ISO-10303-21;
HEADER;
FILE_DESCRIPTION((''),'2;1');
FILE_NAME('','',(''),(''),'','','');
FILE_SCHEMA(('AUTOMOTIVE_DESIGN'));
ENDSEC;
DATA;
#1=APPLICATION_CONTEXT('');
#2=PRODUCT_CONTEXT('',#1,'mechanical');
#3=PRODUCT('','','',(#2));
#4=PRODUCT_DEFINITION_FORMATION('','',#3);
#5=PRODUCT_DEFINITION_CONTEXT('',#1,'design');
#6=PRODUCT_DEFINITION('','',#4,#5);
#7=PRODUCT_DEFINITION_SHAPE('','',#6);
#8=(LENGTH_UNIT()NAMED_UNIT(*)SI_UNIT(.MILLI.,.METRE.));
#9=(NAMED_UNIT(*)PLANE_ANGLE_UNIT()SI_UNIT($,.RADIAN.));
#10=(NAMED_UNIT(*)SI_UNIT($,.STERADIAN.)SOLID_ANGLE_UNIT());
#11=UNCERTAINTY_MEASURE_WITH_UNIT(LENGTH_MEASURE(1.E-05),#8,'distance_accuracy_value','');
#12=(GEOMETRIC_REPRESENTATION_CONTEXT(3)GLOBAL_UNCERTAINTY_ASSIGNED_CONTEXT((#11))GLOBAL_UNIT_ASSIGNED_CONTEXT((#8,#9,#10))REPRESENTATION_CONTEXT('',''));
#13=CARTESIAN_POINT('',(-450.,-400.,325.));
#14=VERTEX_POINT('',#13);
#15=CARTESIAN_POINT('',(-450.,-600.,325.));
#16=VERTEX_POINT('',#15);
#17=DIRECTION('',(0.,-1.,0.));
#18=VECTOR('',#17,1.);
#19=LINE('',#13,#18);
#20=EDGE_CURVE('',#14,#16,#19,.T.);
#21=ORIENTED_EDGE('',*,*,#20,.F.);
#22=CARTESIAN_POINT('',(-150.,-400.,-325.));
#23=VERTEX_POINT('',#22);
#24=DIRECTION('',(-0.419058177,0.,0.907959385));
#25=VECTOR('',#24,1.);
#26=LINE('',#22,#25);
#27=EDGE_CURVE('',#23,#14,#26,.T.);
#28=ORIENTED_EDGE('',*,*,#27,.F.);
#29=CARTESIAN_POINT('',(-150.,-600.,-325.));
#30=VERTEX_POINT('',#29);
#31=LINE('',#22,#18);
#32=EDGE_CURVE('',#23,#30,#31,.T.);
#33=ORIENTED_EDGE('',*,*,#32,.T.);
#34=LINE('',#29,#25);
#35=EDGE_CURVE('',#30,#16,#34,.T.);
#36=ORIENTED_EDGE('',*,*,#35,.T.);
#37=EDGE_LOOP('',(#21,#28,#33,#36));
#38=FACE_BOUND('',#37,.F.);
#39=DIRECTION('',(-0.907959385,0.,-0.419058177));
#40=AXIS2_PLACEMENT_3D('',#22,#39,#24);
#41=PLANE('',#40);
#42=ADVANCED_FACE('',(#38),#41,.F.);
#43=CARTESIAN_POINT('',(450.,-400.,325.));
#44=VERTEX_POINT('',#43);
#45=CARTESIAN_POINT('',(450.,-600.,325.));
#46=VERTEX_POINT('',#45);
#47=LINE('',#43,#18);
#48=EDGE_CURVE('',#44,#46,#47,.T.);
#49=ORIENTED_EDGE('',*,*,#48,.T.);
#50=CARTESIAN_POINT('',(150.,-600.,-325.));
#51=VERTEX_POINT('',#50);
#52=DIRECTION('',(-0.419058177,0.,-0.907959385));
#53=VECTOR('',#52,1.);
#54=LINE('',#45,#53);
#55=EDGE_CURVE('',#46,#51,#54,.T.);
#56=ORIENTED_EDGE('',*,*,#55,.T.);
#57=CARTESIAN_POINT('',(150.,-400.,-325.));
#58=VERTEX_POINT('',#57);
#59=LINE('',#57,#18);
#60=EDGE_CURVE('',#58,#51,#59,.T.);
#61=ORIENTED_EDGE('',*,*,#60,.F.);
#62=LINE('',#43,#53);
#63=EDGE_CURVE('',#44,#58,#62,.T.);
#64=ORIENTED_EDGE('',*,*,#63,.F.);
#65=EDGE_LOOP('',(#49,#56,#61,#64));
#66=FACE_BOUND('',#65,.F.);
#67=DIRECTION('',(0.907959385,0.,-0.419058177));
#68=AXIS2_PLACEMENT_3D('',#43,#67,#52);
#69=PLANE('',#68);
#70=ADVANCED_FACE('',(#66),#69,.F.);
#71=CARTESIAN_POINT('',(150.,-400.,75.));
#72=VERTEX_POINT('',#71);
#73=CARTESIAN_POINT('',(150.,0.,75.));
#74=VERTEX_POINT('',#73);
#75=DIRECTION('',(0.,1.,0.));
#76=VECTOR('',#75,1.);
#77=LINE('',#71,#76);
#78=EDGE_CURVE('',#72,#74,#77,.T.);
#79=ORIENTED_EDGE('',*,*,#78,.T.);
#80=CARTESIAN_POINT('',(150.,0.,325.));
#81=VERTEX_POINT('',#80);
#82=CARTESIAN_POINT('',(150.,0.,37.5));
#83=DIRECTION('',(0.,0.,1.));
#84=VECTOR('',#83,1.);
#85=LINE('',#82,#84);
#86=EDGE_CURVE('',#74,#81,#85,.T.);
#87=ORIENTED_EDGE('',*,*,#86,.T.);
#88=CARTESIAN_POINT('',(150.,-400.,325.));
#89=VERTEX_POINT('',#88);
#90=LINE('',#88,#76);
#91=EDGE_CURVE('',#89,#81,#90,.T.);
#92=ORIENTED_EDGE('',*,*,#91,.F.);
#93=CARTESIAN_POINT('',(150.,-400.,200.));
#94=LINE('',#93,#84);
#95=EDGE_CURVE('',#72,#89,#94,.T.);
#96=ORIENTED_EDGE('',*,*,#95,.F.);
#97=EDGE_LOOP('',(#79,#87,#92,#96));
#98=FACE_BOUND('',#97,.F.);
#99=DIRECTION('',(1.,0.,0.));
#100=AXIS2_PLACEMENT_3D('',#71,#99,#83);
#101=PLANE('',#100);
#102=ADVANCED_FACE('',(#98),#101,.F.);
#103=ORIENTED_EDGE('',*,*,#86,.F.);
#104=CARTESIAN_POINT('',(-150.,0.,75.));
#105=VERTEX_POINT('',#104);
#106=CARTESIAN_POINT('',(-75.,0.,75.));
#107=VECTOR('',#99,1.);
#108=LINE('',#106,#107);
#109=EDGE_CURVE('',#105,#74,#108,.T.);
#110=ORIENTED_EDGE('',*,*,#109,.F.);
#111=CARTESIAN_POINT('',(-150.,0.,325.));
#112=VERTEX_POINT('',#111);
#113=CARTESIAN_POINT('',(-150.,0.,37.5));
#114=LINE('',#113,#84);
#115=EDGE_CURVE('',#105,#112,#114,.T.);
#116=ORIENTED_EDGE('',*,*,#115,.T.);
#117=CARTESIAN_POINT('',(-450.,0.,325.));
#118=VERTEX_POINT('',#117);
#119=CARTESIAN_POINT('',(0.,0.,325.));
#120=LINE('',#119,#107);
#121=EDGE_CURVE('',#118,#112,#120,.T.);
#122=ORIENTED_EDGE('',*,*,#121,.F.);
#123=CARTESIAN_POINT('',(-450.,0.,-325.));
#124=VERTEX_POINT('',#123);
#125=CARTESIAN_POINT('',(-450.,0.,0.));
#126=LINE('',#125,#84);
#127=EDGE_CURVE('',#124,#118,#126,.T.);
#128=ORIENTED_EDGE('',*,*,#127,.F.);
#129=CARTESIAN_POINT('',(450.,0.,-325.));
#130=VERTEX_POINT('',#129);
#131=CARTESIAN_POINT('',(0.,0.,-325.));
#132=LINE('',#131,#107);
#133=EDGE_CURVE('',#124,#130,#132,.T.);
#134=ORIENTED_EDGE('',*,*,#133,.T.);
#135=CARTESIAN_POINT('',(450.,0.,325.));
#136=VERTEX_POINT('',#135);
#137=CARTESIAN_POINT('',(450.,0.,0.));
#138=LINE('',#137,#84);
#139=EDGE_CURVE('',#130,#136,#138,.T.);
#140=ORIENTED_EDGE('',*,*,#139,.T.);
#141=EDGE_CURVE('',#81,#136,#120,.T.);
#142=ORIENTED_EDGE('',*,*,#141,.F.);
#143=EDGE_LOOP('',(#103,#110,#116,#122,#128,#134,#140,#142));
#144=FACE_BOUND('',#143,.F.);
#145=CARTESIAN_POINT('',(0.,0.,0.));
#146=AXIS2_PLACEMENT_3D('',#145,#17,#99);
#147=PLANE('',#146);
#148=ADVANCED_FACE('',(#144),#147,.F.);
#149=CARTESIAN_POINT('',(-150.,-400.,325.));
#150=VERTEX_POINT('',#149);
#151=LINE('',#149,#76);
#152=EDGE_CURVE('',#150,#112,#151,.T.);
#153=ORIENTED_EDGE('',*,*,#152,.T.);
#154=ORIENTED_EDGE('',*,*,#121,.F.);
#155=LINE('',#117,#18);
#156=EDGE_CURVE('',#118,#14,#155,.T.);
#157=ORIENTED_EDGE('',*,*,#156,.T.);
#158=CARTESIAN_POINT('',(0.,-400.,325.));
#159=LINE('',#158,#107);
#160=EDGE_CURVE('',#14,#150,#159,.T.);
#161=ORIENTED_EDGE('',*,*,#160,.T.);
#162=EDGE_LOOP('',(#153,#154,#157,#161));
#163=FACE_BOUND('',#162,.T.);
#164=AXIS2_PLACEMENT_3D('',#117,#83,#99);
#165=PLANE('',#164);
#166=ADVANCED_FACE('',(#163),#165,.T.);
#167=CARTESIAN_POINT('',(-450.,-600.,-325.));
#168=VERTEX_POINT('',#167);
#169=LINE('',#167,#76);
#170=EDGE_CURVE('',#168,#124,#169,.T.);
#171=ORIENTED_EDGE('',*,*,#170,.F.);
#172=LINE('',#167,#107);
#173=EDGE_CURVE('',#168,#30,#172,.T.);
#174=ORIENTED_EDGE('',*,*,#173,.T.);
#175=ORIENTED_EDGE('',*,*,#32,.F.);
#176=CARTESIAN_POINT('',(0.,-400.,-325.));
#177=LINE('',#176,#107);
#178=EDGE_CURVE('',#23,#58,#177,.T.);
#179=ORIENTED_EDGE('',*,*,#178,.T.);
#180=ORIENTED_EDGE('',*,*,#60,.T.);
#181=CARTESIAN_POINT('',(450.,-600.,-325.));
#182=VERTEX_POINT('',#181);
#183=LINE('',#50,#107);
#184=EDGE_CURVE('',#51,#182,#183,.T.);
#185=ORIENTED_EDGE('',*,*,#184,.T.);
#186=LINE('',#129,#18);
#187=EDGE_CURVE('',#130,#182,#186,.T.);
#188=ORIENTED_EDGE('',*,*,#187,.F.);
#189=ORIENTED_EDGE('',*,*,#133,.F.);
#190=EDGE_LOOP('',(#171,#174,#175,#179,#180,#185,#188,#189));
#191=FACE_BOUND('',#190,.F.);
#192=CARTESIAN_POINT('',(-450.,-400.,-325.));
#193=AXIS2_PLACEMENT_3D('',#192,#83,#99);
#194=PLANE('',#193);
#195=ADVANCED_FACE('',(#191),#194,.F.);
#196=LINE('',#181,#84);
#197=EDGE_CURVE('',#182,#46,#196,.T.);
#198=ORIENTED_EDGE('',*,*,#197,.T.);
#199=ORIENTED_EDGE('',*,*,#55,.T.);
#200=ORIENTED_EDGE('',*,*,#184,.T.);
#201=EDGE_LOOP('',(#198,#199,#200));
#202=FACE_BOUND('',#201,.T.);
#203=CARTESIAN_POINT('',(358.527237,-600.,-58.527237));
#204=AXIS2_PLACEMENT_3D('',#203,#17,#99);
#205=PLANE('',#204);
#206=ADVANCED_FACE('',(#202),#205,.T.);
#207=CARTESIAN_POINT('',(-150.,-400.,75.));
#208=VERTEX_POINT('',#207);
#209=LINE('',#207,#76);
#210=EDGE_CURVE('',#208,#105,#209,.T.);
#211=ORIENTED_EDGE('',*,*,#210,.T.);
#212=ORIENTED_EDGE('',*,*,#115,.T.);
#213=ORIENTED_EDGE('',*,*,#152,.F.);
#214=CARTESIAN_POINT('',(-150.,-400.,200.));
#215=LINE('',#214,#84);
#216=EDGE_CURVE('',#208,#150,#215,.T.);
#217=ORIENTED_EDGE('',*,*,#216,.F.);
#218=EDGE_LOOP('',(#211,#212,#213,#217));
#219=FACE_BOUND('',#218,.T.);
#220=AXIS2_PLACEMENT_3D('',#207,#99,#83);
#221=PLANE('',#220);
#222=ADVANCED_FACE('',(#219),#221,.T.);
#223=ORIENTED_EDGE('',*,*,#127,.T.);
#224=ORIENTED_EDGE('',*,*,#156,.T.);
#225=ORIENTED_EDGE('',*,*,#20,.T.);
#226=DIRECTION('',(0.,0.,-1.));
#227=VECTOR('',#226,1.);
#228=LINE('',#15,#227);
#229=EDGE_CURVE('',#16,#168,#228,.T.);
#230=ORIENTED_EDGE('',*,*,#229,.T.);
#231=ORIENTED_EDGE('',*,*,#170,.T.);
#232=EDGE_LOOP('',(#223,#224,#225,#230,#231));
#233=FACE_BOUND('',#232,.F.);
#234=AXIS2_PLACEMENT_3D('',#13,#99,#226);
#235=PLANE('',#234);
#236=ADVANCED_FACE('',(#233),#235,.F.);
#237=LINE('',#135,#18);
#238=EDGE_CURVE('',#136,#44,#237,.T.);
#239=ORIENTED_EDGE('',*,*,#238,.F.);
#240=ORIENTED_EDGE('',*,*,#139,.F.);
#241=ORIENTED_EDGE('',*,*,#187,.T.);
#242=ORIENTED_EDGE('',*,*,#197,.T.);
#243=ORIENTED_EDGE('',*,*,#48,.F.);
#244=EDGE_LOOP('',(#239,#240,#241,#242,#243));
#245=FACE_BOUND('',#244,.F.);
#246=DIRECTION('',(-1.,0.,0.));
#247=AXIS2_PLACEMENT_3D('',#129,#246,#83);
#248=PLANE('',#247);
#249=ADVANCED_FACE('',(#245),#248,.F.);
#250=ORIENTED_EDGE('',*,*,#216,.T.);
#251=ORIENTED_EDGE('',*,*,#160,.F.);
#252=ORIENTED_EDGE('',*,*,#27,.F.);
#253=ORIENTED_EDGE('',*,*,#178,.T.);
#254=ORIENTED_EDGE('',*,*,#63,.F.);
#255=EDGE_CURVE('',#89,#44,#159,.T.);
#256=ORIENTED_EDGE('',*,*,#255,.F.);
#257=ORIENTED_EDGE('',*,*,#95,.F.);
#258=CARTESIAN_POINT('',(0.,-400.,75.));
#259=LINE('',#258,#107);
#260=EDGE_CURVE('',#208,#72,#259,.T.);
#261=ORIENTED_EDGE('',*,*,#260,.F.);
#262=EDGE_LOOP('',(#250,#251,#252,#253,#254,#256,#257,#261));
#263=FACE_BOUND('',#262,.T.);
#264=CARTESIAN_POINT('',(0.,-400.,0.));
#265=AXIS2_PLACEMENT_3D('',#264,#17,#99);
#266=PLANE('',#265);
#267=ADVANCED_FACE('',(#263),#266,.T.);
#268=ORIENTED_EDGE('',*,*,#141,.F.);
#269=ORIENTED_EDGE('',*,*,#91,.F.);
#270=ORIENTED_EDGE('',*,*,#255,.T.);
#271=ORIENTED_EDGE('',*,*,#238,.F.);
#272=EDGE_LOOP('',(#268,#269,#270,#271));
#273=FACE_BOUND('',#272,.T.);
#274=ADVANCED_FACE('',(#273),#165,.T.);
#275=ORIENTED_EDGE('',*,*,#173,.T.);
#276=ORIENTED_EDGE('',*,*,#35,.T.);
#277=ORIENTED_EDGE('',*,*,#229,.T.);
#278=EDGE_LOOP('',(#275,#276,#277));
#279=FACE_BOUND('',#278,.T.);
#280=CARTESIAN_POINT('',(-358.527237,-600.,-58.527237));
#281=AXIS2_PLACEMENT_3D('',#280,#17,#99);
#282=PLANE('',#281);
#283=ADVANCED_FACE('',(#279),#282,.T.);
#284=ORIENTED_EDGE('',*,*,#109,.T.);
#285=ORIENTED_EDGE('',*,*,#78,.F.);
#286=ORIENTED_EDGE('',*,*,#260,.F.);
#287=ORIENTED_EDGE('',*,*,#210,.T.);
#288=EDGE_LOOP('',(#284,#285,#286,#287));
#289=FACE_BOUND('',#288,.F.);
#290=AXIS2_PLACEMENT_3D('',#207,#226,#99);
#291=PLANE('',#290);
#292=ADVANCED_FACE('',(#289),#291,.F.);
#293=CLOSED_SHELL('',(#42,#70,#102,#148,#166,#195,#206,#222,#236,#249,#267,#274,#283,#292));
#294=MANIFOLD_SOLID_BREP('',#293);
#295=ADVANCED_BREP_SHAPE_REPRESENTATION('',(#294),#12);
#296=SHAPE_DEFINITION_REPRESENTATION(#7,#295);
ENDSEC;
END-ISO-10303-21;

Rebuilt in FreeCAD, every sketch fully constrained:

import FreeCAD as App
import Part
import Sketcher
Q = App.Units.Quantity


def add_polygon(sketch, points):
    """Adds a closed chain of lines whose ends are joined by coincident constraints."""
    first, n = sketch.GeometryCount, len(points)
    for a, b in zip(points, points[1:] + points[:1]):
        sketch.addGeometry(Part.LineSegment(App.Vector(*a, 0), App.Vector(*b, 0)), False)
    for i in range(n):
        sketch.addConstraint(Sketcher.Constraint("Coincident", first + i, 2, first + (i + 1) % n, 1))

doc = App.newDocument("Part")
body = doc.addObject("PartDesign::Body", "Body")

# Sketch on XZ plane
sketch1 = body.newObject("Sketcher::SketchObject", "Sketch")
sketch1.AttachmentSupport = (doc.getObject("XZ_Plane"), [""])
sketch1.MapMode = "FlatFace"
add_polygon(sketch1, [(-450, 325), (-450, -325), (450, -325), (450, 325)])  # lines 0-3
sketch1.addConstraint([
    Sketcher.Constraint("Vertical", 0),
    Sketcher.Constraint("Horizontal", 1),
    Sketcher.Constraint("Vertical", 2),
    Sketcher.Constraint("Horizontal", 3),
    Sketcher.Constraint("Symmetric", 0, 2, 2, 2, -1, 1),
    Sketcher.Constraint("DistanceX", 1, 1, 1, 2, Q("900 mm")),
    Sketcher.Constraint("DistanceY", 0, 2, 0, 1, Q("650 mm")),
])
pad1 = body.newObject("PartDesign::Pad", "Pad")
pad1.Profile = sketch1
pad1.Length = 400

# Sketch on XZ plane
sketch2 = body.newObject("Sketcher::SketchObject", "Sketch001")
sketch2.AttachmentSupport = (doc.getObject("XZ_Plane"), [""])
sketch2.MapMode = "FlatFace"
sketch2.AttachmentOffset = App.Placement(App.Vector(0, 0, 400), App.Rotation())
add_polygon(sketch2, [(-150, 325), (-150, 75), (150, 75), (150, 325)])  # lines 0-3
sketch2.addConstraint([
    Sketcher.Constraint("Vertical", 0),
    Sketcher.Constraint("Horizontal", 1),
    Sketcher.Constraint("Vertical", 2),
    Sketcher.Constraint("Horizontal", 3),
    Sketcher.Constraint("DistanceX", 1, 1, 1, 2, Q("300 mm")),
    Sketcher.Constraint("DistanceY", 0, 2, 0, 1, Q("250 mm")),
    Sketcher.Constraint("DistanceX", 0, 2, -1, 1, Q("150 mm")),
    Sketcher.Constraint("DistanceY", -1, 1, 0, 2, Q("75 mm")),
])
pocket1 = body.newObject("PartDesign::Pocket", "Pocket")
pocket1.Profile = sketch2
pocket1.Type = "ThroughAll"

# Sketch on XZ plane
sketch3 = body.newObject("Sketcher::SketchObject", "Sketch002")
sketch3.AttachmentSupport = (doc.getObject("XZ_Plane"), [""])
sketch3.MapMode = "FlatFace"
sketch3.AttachmentOffset = App.Placement(App.Vector(0, 0, 400), App.Rotation())
add_polygon(sketch3, [(-150, -325), (-450, 325), (-450, -325)])  # lines 0-2
add_polygon(sketch3, [(450, -325), (450, 325), (150, -325)])  # lines 3-5
sketch3.addConstraint([
    Sketcher.Constraint("Vertical", 1),
    Sketcher.Constraint("Horizontal", 2),
    Sketcher.Constraint("Vertical", 3),
    Sketcher.Constraint("Horizontal", 5),
    Sketcher.Constraint("Symmetric", 1, 2, 3, 2, -1, 1),
    Sketcher.Constraint("Symmetric", 2, 2, 4, 2, -2),
    Sketcher.Constraint("Horizontal", 0, 2, 3, 2),
    Sketcher.Constraint("DistanceX", 2, 1, 2, 2, Q("300 mm")),
    Sketcher.Constraint("DistanceY", 1, 2, 1, 1, Q("650 mm")),
    Sketcher.Constraint("DistanceX", 0, 2, -1, 1, Q("450 mm")),
])
pad2 = body.newObject("PartDesign::Pad", "Pad001")
pad2.Profile = sketch3
pad2.Length = 200

doc.recompute()
